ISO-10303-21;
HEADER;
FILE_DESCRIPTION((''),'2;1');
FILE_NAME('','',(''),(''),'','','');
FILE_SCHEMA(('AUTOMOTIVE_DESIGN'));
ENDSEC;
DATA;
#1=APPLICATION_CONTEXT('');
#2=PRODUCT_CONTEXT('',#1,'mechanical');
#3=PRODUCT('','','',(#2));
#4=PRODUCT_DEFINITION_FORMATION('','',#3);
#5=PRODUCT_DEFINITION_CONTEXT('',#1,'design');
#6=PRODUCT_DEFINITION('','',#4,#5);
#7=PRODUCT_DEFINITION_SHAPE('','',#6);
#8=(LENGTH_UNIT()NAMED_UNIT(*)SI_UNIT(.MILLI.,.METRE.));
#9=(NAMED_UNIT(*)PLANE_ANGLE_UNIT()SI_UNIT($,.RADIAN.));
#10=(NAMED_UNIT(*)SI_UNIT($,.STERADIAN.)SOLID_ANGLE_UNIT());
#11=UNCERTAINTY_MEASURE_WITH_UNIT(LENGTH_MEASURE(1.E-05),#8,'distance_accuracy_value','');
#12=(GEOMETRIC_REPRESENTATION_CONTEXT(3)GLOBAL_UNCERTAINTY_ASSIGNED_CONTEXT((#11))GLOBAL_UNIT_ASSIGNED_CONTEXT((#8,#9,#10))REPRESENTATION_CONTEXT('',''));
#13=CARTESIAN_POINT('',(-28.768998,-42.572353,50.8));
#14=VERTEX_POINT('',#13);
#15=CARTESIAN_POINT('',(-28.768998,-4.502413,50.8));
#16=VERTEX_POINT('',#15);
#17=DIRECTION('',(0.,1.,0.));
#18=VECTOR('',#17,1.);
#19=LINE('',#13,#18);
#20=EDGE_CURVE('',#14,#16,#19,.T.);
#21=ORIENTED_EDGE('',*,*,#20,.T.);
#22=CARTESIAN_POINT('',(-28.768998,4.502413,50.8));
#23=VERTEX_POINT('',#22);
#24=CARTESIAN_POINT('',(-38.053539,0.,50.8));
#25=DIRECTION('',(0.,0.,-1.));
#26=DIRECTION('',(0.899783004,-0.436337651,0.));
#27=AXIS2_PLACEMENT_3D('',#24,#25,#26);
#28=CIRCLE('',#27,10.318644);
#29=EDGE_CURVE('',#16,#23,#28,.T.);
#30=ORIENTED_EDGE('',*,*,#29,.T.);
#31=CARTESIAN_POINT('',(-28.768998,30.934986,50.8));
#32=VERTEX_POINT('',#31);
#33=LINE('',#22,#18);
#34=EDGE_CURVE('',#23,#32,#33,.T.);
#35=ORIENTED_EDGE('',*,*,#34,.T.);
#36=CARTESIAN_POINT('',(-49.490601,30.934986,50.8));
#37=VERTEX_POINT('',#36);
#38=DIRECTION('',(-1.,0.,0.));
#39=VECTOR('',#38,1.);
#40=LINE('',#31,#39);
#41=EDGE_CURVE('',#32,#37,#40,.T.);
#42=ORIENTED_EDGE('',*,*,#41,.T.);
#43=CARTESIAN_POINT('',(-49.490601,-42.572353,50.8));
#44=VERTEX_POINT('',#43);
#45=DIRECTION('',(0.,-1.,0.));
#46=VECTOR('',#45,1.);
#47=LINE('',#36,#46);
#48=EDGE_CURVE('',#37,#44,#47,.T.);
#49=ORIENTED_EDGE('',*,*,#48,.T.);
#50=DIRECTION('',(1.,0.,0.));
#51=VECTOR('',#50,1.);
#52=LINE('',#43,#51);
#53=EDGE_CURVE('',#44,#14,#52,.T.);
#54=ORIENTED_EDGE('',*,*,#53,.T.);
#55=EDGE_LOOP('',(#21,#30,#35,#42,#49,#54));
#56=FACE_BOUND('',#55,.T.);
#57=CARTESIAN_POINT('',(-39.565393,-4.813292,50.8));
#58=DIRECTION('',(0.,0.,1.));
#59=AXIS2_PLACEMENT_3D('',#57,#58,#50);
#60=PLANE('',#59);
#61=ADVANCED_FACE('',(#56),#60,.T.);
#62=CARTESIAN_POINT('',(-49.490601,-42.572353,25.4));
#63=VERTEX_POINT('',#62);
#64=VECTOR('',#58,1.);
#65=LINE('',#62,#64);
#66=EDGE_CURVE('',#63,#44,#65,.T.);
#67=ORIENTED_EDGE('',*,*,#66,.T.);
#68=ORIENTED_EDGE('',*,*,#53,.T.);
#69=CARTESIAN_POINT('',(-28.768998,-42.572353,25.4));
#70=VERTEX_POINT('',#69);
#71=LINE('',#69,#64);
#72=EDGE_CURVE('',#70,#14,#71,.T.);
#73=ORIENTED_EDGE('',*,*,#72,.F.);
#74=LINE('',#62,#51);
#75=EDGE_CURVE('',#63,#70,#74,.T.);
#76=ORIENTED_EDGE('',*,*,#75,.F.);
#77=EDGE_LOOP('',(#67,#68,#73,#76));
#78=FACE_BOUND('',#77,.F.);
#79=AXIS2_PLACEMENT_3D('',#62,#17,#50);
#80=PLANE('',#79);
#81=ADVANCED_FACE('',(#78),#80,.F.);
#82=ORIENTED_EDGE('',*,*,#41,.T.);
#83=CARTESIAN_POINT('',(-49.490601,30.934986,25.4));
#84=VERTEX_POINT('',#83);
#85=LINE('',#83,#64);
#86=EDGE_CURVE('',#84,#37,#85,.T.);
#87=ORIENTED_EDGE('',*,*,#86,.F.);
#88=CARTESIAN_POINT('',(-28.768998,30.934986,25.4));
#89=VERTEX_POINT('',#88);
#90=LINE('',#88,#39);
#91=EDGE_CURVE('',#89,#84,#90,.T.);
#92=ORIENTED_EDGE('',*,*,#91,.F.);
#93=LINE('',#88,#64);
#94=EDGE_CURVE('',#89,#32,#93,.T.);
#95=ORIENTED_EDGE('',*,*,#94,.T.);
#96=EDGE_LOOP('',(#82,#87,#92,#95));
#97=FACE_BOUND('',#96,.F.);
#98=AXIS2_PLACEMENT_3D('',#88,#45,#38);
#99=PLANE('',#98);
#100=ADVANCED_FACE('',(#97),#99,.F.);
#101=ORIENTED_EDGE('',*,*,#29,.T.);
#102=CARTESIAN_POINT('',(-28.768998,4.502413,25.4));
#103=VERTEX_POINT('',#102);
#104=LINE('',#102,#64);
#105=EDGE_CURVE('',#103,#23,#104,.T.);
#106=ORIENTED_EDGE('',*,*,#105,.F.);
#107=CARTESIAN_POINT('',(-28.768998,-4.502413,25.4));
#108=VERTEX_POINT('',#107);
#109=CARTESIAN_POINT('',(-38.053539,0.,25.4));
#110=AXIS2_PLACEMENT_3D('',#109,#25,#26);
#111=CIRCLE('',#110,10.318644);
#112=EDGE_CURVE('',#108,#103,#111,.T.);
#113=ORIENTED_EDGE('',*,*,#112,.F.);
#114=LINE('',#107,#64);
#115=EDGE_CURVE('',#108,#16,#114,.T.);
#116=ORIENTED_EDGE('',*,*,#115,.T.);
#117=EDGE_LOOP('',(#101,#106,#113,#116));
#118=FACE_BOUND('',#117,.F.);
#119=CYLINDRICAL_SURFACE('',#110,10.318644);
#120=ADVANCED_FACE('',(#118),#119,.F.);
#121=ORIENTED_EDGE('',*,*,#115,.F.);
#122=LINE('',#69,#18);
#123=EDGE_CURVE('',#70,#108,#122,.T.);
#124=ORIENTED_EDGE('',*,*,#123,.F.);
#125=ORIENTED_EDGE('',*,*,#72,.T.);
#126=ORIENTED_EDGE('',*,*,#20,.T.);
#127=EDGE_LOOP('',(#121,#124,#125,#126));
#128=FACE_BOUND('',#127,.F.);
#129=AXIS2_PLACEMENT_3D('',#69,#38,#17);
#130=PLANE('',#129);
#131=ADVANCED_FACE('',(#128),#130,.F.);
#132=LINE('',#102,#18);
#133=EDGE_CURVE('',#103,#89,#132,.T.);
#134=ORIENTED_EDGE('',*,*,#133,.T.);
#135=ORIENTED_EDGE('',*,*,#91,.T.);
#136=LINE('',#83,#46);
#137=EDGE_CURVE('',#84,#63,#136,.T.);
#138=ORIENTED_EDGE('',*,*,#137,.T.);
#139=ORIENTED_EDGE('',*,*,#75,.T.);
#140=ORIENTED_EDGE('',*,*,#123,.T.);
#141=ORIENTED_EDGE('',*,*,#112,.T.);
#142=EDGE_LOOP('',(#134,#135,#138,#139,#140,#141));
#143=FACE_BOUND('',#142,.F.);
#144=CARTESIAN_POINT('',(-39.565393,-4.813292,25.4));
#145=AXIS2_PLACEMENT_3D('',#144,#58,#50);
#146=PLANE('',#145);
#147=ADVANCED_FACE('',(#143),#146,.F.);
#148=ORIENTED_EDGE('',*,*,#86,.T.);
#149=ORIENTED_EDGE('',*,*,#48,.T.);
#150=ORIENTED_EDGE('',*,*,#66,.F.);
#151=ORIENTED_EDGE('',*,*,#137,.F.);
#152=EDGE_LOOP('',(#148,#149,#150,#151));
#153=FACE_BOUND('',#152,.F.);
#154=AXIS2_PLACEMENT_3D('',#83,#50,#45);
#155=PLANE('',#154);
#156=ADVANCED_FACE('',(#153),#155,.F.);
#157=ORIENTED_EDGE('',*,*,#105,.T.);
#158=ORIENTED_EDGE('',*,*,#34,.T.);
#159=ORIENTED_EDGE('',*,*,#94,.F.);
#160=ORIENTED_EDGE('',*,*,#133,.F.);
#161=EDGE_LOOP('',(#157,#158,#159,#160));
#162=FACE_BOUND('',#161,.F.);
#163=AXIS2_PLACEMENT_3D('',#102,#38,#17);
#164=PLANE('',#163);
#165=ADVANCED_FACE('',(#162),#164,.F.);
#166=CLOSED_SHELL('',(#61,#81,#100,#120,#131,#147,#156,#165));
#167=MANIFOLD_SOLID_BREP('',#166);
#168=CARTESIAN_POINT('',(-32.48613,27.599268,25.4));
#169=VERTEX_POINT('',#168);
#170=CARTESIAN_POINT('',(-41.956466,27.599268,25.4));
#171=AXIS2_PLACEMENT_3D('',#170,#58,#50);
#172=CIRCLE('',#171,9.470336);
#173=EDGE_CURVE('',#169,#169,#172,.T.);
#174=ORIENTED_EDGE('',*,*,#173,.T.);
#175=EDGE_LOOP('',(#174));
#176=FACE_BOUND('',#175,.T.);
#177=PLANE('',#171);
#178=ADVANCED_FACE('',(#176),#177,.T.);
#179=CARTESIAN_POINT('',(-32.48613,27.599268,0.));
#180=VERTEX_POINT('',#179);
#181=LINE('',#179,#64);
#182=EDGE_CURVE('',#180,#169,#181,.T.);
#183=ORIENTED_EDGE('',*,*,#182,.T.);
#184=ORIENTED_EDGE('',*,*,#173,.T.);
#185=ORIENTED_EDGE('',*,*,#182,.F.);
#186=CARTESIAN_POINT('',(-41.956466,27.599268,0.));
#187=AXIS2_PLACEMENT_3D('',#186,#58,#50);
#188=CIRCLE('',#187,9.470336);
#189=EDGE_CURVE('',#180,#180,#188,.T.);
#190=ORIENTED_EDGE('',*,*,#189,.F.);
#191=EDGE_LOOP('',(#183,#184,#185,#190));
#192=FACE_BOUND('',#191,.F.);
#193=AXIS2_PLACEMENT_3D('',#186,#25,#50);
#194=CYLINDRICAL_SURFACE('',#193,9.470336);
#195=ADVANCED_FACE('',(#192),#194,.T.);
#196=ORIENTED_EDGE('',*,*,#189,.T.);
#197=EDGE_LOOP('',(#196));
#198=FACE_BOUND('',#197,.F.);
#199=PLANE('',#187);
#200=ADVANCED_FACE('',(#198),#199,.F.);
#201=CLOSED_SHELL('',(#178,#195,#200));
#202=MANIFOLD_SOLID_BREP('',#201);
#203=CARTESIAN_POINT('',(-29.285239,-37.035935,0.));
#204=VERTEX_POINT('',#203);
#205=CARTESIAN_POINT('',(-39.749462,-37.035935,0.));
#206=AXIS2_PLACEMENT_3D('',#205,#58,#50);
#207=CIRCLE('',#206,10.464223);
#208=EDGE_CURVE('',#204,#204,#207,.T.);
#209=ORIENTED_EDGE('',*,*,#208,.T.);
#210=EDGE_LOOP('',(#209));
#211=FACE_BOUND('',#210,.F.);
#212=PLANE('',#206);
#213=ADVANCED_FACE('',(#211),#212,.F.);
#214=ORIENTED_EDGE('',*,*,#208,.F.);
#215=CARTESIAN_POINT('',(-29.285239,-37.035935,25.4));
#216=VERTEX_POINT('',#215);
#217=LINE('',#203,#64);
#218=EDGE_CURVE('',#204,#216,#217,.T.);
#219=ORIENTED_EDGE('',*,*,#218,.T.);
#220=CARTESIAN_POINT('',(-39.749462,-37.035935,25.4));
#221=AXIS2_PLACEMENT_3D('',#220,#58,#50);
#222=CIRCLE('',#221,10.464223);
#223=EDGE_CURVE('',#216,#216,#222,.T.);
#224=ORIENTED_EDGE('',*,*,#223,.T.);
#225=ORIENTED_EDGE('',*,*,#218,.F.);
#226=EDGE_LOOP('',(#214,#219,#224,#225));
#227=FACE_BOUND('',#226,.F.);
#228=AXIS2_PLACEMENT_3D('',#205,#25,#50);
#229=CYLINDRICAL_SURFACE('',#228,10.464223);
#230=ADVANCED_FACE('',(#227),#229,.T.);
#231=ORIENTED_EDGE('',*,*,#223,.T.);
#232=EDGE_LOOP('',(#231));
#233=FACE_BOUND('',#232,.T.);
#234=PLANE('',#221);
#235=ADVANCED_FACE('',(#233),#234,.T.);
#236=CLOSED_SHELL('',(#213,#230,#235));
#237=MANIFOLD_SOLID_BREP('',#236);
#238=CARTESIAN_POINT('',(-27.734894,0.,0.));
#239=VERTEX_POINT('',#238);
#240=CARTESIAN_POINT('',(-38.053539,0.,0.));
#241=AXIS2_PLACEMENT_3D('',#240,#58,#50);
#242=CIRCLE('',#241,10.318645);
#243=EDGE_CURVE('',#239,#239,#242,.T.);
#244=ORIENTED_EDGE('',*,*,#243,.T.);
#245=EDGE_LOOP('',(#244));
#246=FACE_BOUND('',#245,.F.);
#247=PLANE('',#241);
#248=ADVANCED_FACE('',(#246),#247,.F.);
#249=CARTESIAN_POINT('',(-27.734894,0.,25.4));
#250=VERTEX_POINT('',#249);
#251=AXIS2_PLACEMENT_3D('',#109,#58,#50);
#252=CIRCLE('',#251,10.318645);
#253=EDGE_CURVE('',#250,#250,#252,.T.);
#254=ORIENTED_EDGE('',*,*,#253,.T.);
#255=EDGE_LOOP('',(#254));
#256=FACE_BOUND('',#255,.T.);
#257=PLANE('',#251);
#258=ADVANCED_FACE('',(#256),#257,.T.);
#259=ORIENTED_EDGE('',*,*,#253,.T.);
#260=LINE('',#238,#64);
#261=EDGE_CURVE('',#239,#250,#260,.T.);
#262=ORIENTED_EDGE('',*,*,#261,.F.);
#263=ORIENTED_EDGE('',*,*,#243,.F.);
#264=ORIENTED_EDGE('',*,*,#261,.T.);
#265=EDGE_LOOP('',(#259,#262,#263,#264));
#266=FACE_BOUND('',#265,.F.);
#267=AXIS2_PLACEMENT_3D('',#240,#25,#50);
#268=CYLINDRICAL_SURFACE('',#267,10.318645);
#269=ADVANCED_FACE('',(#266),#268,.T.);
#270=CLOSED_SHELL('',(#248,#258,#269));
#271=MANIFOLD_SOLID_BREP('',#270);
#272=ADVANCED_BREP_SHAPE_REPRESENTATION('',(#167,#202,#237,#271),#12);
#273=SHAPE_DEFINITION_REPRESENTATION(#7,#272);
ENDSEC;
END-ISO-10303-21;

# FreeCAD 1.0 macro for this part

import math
import FreeCAD as App
import Part
import Sketcher
from FreeCAD import Vector
Q = App.Units.Quantity

doc = App.newDocument("Part")
body = doc.addObject("PartDesign::Body", "Body")

sketch1 = body.newObject("Sketcher::SketchObject", "Sketch")
sketch1.AttachmentSupport = (doc.getObject("XY_Plane"), [""])
sketch1.MapMode = "FlatFace"
sketch1.addGeometry(Part.Circle(Vector(-38, 0, 0), Vector(0, 0, 1), 10), False)
sketch1.addConstraint(Sketcher.Constraint("PointOnObject", 0, 3, -1))
sketch1.addConstraint(Sketcher.Constraint("Diameter", 0, 20.63729))
sketch1.addConstraint(Sketcher.Constraint("DistanceX", 0, 3, -1, 1, 38.053539))
pad1 = body.newObject("PartDesign::Pad", "Pad")
pad1.Profile = sketch1
pad1.Length = Q("1 in")
body2 = doc.addObject("PartDesign::Body", "Body001")

sketch2 = body2.newObject("Sketcher::SketchObject", "Sketch001")
sketch2.AttachmentSupport = (doc.getObject("XY_Plane001"), [""])
sketch2.MapMode = "FlatFace"
sketch2.addGeometry(Part.Circle(Vector(-42, 28, 0), Vector(0, 0, 1), 9), False)
sketch2.addConstraint(Sketcher.Constraint("Diameter", 0, 18.940672))
sketch2.addConstraint(Sketcher.Constraint("DistanceX", 0, 3, -1, 1, 41.956466))
sketch2.addConstraint(Sketcher.Constraint("DistanceY", -1, 1, 0, 3, 27.599268))
pad2 = body2.newObject("PartDesign::Pad", "Pad001")
pad2.Profile = sketch2
pad2.Length = Q("1 in")
body3 = doc.addObject("PartDesign::Body", "Body002")

sketch3 = body3.newObject("Sketcher::SketchObject", "Sketch002")
sketch3.AttachmentSupport = (doc.getObject("XY_Plane002"), [""])
sketch3.MapMode = "FlatFace"
sketch3.addGeometry(Part.Circle(Vector(-40, -37, 0), Vector(0, 0, 1), 10), False)
sketch3.addConstraint(Sketcher.Constraint("Diameter", 0, 20.928446))
sketch3.addConstraint(Sketcher.Constraint("DistanceX", 0, 3, -1, 1, 39.749462))
sketch3.addConstraint(Sketcher.Constraint("DistanceY", 0, 3, -1, 1, 37.035935))
pad3 = body3.newObject("PartDesign::Pad", "Pad002")
pad3.Profile = sketch3
pad3.Length = Q("1 in")
body4 = doc.addObject("PartDesign::Body", "Body003")

sketch4 = body4.newObject("Sketcher::SketchObject", "Sketch003")
sketch4.AttachmentSupport = (doc.getObject("XY_Plane003"), [""])
sketch4.MapMode = "FlatFace"
sketch4.AttachmentOffset = App.Placement(Vector(0, 0, 1 * 25.4), App.Rotation())
sketch4.addGeometry(Part.LineSegment(Vector(-29, 31, 0), Vector(-49, 31, 0)), False)
sketch4.addGeometry(Part.LineSegment(Vector(-49, 31, 0), Vector(-49, -43, 0)), False)
sketch4.addGeometry(Part.LineSegment(Vector(-49, -43, 0), Vector(-29, -43, 0)), False)
sketch4.addGeometry(Part.LineSegment(Vector(-29, -43, 0), Vector(-29, -5, 0)), False)
sketch4.addGeometry(Part.ArcOfCircle(Part.Circle(Vector(-38, 0, 0), Vector(0, 0, 1), 10), math.radians(26), math.radians(334)), False)
sketch4.addGeometry(Part.LineSegment(Vector(-29, 5, 0), Vector(-29, 31, 0)), False)
sketch4.addConstraint(Sketcher.Constraint("Coincident", 0, 2, 1, 1))
sketch4.addConstraint(Sketcher.Constraint("Coincident", 1, 2, 2, 1))
sketch4.addConstraint(Sketcher.Constraint("Coincident", 2, 2, 3, 1))
sketch4.addConstraint(Sketcher.Constraint("Coincident", 3, 2, 4, 2))
sketch4.addConstraint(Sketcher.Constraint("Coincident", 4, 1, 5, 1))
sketch4.addConstraint(Sketcher.Constraint("Coincident", 5, 2, 0, 1))
sketch4.addConstraint(Sketcher.Constraint("Horizontal", 0))
sketch4.addConstraint(Sketcher.Constraint("Vertical", 1))
sketch4.addConstraint(Sketcher.Constraint("Horizontal", 2))
sketch4.addConstraint(Sketcher.Constraint("Vertical", 3))
sketch4.addConstraint(Sketcher.Constraint("Vertical", 5))
sketch4.addConstraint(Sketcher.Constraint("Symmetric", 3, 2, 4, 1, -1))
sketch4.addConstraint(Sketcher.Constraint("Radius", 4, 10.318644))
sketch4.addConstraint(Sketcher.Constraint("DistanceY", 1, 2, 1, 1, 73.507339))
sketch4.addConstraint(Sketcher.Constraint("DistanceY", 3, 1, 3, 2, 38.06994))
sketch4.addConstraint(Sketcher.Constraint("DistanceX", 0, 2, -1, 1, 49.490601))
sketch4.addConstraint(Sketcher.Constraint("DistanceX", 2, 2, -1, 1, 28.768998))
sketch4.addConstraint(Sketcher.Constraint("DistanceY", 5, 1, 5, 2, 26.432573))
pad4 = body4.newObject("PartDesign::Pad", "Pad003")
pad4.Profile = sketch4
pad4.Length = Q("1 in")

doc.recompute()
